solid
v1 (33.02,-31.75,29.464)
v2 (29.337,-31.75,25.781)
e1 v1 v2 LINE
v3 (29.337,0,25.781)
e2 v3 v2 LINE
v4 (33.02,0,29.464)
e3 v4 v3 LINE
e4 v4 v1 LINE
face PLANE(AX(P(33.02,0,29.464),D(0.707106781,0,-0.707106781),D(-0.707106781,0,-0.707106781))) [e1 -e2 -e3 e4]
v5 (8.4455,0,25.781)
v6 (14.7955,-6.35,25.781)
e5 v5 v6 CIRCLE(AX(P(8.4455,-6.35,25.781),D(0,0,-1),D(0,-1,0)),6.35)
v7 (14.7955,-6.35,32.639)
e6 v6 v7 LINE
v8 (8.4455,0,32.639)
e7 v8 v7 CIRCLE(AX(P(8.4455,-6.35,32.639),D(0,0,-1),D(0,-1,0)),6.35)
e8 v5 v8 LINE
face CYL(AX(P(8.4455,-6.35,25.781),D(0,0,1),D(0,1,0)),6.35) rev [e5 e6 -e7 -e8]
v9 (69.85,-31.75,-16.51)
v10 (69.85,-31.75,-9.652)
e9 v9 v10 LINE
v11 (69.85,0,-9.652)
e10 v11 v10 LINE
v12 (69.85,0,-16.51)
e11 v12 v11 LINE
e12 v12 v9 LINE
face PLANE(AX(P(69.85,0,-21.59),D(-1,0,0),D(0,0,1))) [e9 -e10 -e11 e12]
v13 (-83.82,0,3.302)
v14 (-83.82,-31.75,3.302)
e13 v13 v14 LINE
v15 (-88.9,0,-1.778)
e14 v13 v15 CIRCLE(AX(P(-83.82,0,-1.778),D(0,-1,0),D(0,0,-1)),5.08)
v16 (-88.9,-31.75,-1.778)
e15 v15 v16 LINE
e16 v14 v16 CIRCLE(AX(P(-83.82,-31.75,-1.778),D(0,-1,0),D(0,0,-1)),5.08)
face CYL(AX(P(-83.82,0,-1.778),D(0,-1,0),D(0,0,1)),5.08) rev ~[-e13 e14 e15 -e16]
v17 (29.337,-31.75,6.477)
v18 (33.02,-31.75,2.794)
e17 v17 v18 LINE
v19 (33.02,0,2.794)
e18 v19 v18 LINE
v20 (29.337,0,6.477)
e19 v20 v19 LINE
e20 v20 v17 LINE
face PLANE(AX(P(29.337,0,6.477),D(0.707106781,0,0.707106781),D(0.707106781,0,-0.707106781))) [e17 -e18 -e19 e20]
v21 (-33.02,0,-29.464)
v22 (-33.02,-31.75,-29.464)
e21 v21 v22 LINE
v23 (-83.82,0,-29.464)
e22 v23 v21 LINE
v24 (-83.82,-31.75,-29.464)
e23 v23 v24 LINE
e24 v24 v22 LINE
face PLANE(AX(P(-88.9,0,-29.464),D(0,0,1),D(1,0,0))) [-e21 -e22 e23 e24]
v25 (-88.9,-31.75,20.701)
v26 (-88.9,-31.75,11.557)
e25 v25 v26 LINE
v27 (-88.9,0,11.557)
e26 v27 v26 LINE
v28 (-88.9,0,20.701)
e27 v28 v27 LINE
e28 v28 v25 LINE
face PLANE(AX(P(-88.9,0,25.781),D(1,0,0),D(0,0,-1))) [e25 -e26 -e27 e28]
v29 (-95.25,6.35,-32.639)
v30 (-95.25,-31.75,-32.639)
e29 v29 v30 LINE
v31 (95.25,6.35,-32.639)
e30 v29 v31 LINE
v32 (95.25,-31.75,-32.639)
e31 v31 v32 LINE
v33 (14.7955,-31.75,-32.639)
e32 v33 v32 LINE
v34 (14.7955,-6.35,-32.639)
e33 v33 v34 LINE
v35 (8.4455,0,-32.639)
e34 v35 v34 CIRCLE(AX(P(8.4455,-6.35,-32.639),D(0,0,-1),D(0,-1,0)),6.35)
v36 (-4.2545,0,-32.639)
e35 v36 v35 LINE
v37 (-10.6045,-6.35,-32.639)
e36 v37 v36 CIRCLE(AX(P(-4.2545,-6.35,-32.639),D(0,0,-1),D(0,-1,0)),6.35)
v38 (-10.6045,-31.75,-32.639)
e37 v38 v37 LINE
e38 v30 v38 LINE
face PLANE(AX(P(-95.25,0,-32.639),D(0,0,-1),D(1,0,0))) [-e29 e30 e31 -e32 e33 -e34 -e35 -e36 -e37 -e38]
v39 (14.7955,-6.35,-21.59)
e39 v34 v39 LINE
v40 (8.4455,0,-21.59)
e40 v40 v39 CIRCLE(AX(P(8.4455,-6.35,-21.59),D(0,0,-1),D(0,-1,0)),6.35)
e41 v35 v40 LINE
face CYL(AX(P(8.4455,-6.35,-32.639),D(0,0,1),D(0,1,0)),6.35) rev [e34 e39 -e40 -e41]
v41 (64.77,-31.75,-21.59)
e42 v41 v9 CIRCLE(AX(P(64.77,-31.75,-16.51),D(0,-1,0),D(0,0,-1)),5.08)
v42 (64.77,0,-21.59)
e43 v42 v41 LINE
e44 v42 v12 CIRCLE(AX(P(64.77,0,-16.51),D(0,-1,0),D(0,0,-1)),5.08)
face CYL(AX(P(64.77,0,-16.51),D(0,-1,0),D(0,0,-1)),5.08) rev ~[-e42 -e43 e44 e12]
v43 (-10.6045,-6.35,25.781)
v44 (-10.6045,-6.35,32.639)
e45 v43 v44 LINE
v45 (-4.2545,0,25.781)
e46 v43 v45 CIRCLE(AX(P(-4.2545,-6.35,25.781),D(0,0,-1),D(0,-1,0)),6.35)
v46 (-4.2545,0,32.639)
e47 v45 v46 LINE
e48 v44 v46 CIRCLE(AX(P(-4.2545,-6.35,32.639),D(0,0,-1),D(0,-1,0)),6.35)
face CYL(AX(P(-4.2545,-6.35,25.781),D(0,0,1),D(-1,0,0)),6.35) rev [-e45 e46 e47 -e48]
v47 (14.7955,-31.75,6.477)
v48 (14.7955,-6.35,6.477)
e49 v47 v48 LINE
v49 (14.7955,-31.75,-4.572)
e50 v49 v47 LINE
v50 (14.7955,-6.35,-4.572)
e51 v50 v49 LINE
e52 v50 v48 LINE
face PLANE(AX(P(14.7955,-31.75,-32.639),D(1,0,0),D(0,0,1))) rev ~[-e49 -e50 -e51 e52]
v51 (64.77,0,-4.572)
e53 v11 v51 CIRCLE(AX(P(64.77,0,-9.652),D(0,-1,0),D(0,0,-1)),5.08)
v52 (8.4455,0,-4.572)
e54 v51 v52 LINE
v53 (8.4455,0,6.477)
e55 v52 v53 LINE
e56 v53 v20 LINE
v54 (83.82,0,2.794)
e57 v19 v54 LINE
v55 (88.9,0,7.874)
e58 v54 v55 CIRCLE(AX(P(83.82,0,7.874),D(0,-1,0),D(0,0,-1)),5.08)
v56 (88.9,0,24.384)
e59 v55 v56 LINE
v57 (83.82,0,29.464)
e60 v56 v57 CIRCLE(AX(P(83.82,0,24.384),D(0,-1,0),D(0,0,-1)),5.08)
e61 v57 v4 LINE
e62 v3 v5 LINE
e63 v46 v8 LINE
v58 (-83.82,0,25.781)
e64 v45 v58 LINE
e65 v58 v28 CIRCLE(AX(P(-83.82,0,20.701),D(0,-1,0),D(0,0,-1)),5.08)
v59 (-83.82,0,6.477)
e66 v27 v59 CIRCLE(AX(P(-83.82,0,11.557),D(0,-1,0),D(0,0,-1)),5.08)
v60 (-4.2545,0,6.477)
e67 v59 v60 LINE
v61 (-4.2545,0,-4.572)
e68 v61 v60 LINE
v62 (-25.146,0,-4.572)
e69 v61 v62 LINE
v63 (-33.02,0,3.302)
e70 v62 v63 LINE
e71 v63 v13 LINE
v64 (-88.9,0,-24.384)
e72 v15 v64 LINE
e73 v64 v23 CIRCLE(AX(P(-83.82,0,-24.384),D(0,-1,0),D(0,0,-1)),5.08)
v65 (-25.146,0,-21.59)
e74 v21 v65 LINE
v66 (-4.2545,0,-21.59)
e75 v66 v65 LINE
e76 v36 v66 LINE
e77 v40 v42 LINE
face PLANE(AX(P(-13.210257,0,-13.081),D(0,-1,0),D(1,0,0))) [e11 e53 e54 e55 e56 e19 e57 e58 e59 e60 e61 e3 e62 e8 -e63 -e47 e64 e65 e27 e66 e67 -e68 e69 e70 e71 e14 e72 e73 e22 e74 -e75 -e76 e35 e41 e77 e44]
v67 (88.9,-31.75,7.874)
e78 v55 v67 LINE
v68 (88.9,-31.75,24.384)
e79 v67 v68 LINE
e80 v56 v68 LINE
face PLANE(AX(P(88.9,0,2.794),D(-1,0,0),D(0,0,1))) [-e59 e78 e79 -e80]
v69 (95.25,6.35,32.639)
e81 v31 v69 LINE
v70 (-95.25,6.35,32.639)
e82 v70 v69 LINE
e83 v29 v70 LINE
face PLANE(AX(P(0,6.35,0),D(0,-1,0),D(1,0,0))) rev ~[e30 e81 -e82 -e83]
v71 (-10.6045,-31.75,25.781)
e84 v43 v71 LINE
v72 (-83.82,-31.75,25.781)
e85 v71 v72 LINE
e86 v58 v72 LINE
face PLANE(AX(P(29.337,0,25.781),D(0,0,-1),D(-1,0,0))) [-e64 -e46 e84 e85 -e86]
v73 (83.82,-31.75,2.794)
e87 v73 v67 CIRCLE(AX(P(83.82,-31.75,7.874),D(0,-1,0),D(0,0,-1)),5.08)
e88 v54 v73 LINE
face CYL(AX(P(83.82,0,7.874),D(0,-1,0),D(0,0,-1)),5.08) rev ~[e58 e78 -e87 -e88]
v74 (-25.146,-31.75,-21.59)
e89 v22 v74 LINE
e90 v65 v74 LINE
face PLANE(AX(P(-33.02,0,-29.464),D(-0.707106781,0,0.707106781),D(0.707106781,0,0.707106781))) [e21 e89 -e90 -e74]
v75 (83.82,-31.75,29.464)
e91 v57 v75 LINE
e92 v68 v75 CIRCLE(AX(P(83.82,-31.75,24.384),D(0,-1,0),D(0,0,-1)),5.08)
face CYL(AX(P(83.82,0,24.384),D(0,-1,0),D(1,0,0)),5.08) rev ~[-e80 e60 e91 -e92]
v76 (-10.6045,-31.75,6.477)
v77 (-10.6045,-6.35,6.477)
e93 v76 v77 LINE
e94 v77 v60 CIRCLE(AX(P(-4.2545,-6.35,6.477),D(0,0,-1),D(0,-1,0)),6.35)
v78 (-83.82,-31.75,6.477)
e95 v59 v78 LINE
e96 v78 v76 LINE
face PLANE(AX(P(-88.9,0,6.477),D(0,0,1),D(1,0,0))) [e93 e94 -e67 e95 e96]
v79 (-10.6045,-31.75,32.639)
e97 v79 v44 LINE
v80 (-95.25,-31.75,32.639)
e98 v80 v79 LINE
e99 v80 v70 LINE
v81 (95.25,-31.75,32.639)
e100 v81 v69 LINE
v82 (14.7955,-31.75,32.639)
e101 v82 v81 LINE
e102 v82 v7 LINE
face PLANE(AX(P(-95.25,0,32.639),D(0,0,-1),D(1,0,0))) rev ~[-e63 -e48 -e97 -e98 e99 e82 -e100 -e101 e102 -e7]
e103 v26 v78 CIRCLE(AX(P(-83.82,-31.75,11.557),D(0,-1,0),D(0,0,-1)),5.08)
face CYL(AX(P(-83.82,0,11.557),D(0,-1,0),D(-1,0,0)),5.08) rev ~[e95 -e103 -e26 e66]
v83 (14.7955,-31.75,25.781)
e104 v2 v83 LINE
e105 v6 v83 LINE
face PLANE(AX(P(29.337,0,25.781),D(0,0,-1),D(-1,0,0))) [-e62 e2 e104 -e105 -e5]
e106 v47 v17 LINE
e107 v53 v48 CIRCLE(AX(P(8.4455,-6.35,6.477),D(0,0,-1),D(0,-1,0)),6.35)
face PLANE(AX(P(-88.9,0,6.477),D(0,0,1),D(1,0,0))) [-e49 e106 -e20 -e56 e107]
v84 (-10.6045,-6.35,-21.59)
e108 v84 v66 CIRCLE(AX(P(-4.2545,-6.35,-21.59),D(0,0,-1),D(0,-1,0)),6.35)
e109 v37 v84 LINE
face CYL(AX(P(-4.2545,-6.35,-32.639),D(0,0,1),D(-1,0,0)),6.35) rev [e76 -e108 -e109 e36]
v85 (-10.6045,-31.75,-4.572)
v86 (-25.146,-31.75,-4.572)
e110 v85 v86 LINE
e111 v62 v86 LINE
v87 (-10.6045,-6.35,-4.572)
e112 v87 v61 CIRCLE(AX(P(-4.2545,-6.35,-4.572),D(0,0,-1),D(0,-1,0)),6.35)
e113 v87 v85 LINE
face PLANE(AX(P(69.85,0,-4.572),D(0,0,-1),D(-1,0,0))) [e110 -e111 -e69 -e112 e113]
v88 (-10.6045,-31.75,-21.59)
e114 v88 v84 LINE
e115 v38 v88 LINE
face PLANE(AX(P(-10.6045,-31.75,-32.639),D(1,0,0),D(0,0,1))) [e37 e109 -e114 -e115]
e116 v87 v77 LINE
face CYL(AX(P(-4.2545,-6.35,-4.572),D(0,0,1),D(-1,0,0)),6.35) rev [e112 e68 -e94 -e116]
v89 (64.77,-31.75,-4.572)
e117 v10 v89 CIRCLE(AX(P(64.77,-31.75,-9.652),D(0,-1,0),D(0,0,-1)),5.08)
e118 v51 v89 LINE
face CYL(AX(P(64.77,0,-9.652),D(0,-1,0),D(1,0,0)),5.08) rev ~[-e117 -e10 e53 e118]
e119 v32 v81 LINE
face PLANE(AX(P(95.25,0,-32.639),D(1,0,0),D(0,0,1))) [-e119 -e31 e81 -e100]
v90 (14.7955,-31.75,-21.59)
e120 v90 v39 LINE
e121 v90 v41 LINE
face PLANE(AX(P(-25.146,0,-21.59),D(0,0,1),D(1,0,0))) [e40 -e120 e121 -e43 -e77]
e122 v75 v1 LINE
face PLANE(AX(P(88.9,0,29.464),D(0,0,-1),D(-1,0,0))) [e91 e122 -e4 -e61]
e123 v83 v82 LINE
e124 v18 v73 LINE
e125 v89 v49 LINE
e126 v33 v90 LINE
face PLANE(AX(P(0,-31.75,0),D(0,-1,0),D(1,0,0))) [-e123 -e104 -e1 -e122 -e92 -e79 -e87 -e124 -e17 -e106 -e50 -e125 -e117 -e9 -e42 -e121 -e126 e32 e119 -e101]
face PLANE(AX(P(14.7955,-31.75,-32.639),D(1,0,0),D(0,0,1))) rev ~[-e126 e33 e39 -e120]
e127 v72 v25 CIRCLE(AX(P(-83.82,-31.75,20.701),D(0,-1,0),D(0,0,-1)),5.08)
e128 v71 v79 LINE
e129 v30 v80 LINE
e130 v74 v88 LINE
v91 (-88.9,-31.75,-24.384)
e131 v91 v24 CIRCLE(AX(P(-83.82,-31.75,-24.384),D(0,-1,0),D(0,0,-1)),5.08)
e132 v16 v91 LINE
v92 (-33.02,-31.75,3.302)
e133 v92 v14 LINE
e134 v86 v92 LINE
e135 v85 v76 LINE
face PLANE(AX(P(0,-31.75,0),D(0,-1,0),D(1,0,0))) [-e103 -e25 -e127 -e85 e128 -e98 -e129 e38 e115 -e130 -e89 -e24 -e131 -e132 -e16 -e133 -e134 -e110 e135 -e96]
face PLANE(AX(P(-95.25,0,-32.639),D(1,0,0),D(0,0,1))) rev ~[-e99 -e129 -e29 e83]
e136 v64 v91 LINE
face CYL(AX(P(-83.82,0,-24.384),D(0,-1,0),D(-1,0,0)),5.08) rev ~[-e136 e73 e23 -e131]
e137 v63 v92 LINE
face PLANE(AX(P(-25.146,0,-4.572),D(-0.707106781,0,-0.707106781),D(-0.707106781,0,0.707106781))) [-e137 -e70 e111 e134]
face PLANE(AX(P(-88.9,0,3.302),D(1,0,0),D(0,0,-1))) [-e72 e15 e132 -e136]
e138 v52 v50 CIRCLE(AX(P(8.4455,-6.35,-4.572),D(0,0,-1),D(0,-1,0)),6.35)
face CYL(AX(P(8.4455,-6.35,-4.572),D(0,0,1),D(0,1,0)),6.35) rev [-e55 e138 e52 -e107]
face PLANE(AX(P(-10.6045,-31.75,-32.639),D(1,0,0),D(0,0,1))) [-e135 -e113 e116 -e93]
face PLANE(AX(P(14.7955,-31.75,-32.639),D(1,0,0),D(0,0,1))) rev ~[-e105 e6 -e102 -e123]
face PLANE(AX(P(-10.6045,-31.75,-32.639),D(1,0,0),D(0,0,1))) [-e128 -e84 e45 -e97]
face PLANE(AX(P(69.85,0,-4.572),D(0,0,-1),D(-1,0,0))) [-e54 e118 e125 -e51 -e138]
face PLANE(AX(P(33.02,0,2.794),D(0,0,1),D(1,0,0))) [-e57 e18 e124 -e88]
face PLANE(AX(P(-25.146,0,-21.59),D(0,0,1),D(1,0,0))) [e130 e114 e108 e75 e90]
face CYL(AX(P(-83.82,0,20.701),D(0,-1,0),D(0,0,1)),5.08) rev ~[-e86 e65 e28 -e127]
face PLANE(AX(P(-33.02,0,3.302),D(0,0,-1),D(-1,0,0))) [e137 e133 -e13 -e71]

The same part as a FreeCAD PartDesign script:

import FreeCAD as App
import Part
import Sketcher
from FreeCAD import Vector
Q = App.Units.Quantity


def edges_at(feature, points):
    """Names of the edges that pass closest to the given points."""
    edges = feature.Shape.Edges
    near = lambda p: min(range(len(edges)), key=lambda i: edges[i].distToShape(Part.Vertex(*p))[0])
    return sorted({f"Edge{near(p) + 1}" for p in points})

doc = App.newDocument("Part")
body = doc.addObject("PartDesign::Body", "Body")

# Sketch on XZ plane
sketch1 = doc.addObject("Sketcher::SketchObject", "Sketch")
body.addObject(sketch1)
sketch1.AttachmentSupport = (doc.XZ_Plane, [""])
sketch1.MapMode = "FlatFace"
sketch1.addGeometry([
    Part.LineSegment(Vector(-95, 33, 0), Vector(-95, -33, 0)),
    Part.LineSegment(Vector(-95, -33, 0), Vector(95, -33, 0)),
    Part.LineSegment(Vector(95, -33, 0), Vector(95, 33, 0)),
    Part.LineSegment(Vector(95, 33, 0), Vector(-95, 33, 0)),
], False)
sketch1.addConstraint([
    Sketcher.Constraint("Coincident", 0, 2, 1, 1),
    Sketcher.Constraint("Coincident", 1, 2, 2, 1),
    Sketcher.Constraint("Coincident", 2, 2, 3, 1),
    Sketcher.Constraint("Coincident", 3, 2, 0, 1),
    Sketcher.Constraint("Vertical", 0),
    Sketcher.Constraint("Horizontal", 1),
    Sketcher.Constraint("Vertical", 2),
    Sketcher.Constraint("Horizontal", 3),
    Sketcher.Constraint("Symmetric", 0, 2, 2, 2, -1, 1),
    Sketcher.Constraint("DistanceX", 1, 1, 1, 2, Q("7.5 in")),
    Sketcher.Constraint("DistanceY", 0, 2, 0, 1, Q("2.57 in")),
])
pad1 = doc.addObject("PartDesign::Pad", "Pad")
body.addObject(pad1)
pad1.Profile = sketch1
pad1.Type = "TwoLengths"
pad1.Length = Q("1.25 in")
pad1.Length2 = Q("0.25 in")

# Sketch on XZ plane
sketch2 = doc.addObject("Sketcher::SketchObject", "Sketch001")
body.addObject(sketch2)
sketch2.AttachmentSupport = (doc.XZ_Plane, [""])
sketch2.MapMode = "FlatFace"
sketch2.addGeometry([
    Part.LineSegment(Vector(29, 26, 0), Vector(-89, 26, 0)),  # 0
    Part.LineSegment(Vector(-89, 26, 0), Vector(-89, 6, 0)),  # 1
    Part.LineSegment(Vector(-89, 6, 0), Vector(29, 6, 0)),  # 2
    Part.LineSegment(Vector(29, 6, 0), Vector(33, 3, 0)),  # 3
    Part.LineSegment(Vector(33, 3, 0), Vector(89, 3, 0)),  # 4
    Part.LineSegment(Vector(89, 3, 0), Vector(89, 29, 0)),  # 5
    Part.LineSegment(Vector(89, 29, 0), Vector(33, 29, 0)),  # 6
    Part.LineSegment(Vector(33, 29, 0), Vector(29, 26, 0)),  # 7
    Part.LineSegment(Vector(-33, 3, 0), Vector(-89, 3, 0)),  # 8
    Part.LineSegment(Vector(-89, 3, 0), Vector(-89, -29, 0)),  # 9
    Part.LineSegment(Vector(-89, -29, 0), Vector(-33, -29, 0)),  # 10
    Part.LineSegment(Vector(-33, -29, 0), Vector(-25, -22, 0)),  # 11
    Part.LineSegment(Vector(-25, -22, 0), Vector(70, -22, 0)),  # 12
    Part.LineSegment(Vector(70, -22, 0), Vector(70, -5, 0)),  # 13
    Part.LineSegment(Vector(70, -5, 0), Vector(-25, -5, 0)),  # 14
    Part.LineSegment(Vector(-25, -5, 0), Vector(-33, 3, 0)),  # 15
], False)
sketch2.addConstraint([
    Sketcher.Constraint("Coincident", 0, 2, 1, 1),
    Sketcher.Constraint("Coincident", 1, 2, 2, 1),
    Sketcher.Constraint("Coincident", 2, 2, 3, 1),
    Sketcher.Constraint("Coincident", 3, 2, 4, 1),
    Sketcher.Constraint("Coincident", 4, 2, 5, 1),
    Sketcher.Constraint("Coincident", 5, 2, 6, 1),
    Sketcher.Constraint("Coincident", 6, 2, 7, 1),
    Sketcher.Constraint("Coincident", 7, 2, 0, 1),
    Sketcher.Constraint("Coincident", 8, 2, 9, 1),
    Sketcher.Constraint("Coincident", 9, 2, 10, 1),
    Sketcher.Constraint("Coincident", 10, 2, 11, 1),
    Sketcher.Constraint("Coincident", 11, 2, 12, 1),
    Sketcher.Constraint("Coincident", 12, 2, 13, 1),
    Sketcher.Constraint("Coincident", 13, 2, 14, 1),
    Sketcher.Constraint("Coincident", 14, 2, 15, 1),
    Sketcher.Constraint("Coincident", 15, 2, 8, 1),
    Sketcher.Constraint("Horizontal", 0),
    Sketcher.Constraint("Vertical", 1),
    Sketcher.Constraint("Horizontal", 2),
    Sketcher.Constraint("Horizontal", 4),
    Sketcher.Constraint("Vertical", 5),
    Sketcher.Constraint("Horizontal", 6),
    Sketcher.Constraint("Horizontal", 8),
    Sketcher.Constraint("Vertical", 9),
    Sketcher.Constraint("Horizontal", 10),
    Sketcher.Constraint("Horizontal", 12),
    Sketcher.Constraint("Vertical", 13),
    Sketcher.Constraint("Horizontal", 14),
    Sketcher.Constraint("Symmetric", 5, 2, 9, 2, -1, 1),
    Sketcher.Constraint("Perpendicular", 3, 7),
    Sketcher.Constraint("Parallel", 7, 11),
    Sketcher.Constraint("Perpendicular", 11, 15),
    Sketcher.Constraint("Vertical", 3, 2, 6, 2),
    Sketcher.Constraint("Vertical", 2, 2, 7, 2),
    Sketcher.Constraint("Vertical", 1, 2, 8, 2),
    Sketcher.Constraint("Vertical", 11, 2, 14, 2),
    Sketcher.Constraint("Vertical", 10, 2, 15, 2),
    Sketcher.Constraint("Equal", 6, 8),
    Sketcher.Constraint("Equal", 3, 7),
    Sketcher.Constraint("DistanceX", 4, 1, 4, 2, Q("2.2 in")),
    Sketcher.Constraint("DistanceX", 1, 2, 4, 2, Q("7 in")),
    Sketcher.Constraint("DistanceX", 12, 1, 12, 2, Q("3.74 in")),
    Sketcher.Constraint("DistanceY", 1, 2, 1, 1, Q("0.76 in")),
    Sketcher.Constraint("DistanceY", 5, 1, 5, 2, Q("1.05 in")),
    Sketcher.Constraint("DistanceY", 9, 2, 9, 1, Q("1.29 in")),
    Sketcher.Constraint("DistanceY", 13, 1, 13, 2, Q("0.67 in")),
    Sketcher.Constraint("DistanceY", -1, 1, 3, 2, Q("0.11 in")),
])
pocket1 = doc.addObject("PartDesign::Pocket", "Pocket")
body.addObject(pocket1)
pocket1.Profile = sketch2
pocket1.Type = "ThroughAll"
pocket1.Reversed = True
doc.recompute()

fillet = doc.addObject("PartDesign::Fillet", "Fillet")
body.addObject(fillet)
fillet.Base = (pocket1, edges_at(pocket1, [
    (-88.9, -15.875, 3.302),
    (-88.9, -15.875, -29.464),
    (69.85, -15.875, -4.572),
    (69.85, -15.875, -21.59),
    (88.9, -15.875, 2.794),
    (88.9, -15.875, 29.464),
    (-88.9, -15.875, 25.781),
    (-88.9, -15.875, 6.477),
]))
fillet.Radius = Q("0.2 in")

# Sketch on XZ plane
sketch3 = doc.addObject("Sketcher::SketchObject", "Sketch002")
body.addObject(sketch3)
sketch3.AttachmentSupport = (doc.XZ_Plane, [""])
sketch3.MapMode = "FlatFace"
sketch3.AttachmentOffset = App.Placement(Vector(0, 0, 1.25 * 25.4), App.Rotation())
sketch3.addGeometry([
    Part.LineSegment(Vector(-11, 33, 0), Vector(-11, -33, 0)),
    Part.LineSegment(Vector(-11, -33, 0), Vector(15, -33, 0)),
    Part.LineSegment(Vector(15, -33, 0), Vector(15, 33, 0)),
    Part.LineSegment(Vector(15, 33, 0), Vector(-11, 33, 0)),
], False)
sketch3.addConstraint([
    Sketcher.Constraint("Coincident", 0, 2, 1, 1),
    Sketcher.Constraint("Coincident", 1, 2, 2, 1),
    Sketcher.Constraint("Coincident", 2, 2, 3, 1),
    Sketcher.Constraint("Coincident", 3, 2, 0, 1),
    Sketcher.Constraint("Vertical", 0),
    Sketcher.Constraint("Horizontal", 1),
    Sketcher.Constraint("Vertical", 2),
    Sketcher.Constraint("Horizontal", 3),
    Sketcher.Constraint("DistanceX", 1, 1, 1, 2, Q("1 in")),
    Sketcher.Constraint("DistanceY", 0, 2, 0, 1, Q("2.57 in")),
    Sketcher.Constraint("DistanceY", 0, 2, -1, 1, Q("1.285 in")),
    Sketcher.Constraint("DistanceX", 0, 2, -1, 1, Q("0.4175 in")),
])
pocket2 = doc.addObject("PartDesign::Pocket", "Pocket001")
body.addObject(pocket2)
pocket2.Profile = sketch3
pocket2.Length = Q("1.25 in")
doc.recompute()

fillet2 = doc.addObject("PartDesign::Fillet", "Fillet001")
body.addObject(fillet2)
fillet2.Base = (pocket2, edges_at(pocket2, [
    (14.796, 0, -27.114),
    (14.796, 0, 0.953),
    (14.796, 0, 29.21),
    (-10.604, 0, 29.21),
    (-10.604, 0, 0.953),
    (-10.604, 0, -27.114),
]))
fillet2.Radius = Q("0.25 in")

doc.recompute()
